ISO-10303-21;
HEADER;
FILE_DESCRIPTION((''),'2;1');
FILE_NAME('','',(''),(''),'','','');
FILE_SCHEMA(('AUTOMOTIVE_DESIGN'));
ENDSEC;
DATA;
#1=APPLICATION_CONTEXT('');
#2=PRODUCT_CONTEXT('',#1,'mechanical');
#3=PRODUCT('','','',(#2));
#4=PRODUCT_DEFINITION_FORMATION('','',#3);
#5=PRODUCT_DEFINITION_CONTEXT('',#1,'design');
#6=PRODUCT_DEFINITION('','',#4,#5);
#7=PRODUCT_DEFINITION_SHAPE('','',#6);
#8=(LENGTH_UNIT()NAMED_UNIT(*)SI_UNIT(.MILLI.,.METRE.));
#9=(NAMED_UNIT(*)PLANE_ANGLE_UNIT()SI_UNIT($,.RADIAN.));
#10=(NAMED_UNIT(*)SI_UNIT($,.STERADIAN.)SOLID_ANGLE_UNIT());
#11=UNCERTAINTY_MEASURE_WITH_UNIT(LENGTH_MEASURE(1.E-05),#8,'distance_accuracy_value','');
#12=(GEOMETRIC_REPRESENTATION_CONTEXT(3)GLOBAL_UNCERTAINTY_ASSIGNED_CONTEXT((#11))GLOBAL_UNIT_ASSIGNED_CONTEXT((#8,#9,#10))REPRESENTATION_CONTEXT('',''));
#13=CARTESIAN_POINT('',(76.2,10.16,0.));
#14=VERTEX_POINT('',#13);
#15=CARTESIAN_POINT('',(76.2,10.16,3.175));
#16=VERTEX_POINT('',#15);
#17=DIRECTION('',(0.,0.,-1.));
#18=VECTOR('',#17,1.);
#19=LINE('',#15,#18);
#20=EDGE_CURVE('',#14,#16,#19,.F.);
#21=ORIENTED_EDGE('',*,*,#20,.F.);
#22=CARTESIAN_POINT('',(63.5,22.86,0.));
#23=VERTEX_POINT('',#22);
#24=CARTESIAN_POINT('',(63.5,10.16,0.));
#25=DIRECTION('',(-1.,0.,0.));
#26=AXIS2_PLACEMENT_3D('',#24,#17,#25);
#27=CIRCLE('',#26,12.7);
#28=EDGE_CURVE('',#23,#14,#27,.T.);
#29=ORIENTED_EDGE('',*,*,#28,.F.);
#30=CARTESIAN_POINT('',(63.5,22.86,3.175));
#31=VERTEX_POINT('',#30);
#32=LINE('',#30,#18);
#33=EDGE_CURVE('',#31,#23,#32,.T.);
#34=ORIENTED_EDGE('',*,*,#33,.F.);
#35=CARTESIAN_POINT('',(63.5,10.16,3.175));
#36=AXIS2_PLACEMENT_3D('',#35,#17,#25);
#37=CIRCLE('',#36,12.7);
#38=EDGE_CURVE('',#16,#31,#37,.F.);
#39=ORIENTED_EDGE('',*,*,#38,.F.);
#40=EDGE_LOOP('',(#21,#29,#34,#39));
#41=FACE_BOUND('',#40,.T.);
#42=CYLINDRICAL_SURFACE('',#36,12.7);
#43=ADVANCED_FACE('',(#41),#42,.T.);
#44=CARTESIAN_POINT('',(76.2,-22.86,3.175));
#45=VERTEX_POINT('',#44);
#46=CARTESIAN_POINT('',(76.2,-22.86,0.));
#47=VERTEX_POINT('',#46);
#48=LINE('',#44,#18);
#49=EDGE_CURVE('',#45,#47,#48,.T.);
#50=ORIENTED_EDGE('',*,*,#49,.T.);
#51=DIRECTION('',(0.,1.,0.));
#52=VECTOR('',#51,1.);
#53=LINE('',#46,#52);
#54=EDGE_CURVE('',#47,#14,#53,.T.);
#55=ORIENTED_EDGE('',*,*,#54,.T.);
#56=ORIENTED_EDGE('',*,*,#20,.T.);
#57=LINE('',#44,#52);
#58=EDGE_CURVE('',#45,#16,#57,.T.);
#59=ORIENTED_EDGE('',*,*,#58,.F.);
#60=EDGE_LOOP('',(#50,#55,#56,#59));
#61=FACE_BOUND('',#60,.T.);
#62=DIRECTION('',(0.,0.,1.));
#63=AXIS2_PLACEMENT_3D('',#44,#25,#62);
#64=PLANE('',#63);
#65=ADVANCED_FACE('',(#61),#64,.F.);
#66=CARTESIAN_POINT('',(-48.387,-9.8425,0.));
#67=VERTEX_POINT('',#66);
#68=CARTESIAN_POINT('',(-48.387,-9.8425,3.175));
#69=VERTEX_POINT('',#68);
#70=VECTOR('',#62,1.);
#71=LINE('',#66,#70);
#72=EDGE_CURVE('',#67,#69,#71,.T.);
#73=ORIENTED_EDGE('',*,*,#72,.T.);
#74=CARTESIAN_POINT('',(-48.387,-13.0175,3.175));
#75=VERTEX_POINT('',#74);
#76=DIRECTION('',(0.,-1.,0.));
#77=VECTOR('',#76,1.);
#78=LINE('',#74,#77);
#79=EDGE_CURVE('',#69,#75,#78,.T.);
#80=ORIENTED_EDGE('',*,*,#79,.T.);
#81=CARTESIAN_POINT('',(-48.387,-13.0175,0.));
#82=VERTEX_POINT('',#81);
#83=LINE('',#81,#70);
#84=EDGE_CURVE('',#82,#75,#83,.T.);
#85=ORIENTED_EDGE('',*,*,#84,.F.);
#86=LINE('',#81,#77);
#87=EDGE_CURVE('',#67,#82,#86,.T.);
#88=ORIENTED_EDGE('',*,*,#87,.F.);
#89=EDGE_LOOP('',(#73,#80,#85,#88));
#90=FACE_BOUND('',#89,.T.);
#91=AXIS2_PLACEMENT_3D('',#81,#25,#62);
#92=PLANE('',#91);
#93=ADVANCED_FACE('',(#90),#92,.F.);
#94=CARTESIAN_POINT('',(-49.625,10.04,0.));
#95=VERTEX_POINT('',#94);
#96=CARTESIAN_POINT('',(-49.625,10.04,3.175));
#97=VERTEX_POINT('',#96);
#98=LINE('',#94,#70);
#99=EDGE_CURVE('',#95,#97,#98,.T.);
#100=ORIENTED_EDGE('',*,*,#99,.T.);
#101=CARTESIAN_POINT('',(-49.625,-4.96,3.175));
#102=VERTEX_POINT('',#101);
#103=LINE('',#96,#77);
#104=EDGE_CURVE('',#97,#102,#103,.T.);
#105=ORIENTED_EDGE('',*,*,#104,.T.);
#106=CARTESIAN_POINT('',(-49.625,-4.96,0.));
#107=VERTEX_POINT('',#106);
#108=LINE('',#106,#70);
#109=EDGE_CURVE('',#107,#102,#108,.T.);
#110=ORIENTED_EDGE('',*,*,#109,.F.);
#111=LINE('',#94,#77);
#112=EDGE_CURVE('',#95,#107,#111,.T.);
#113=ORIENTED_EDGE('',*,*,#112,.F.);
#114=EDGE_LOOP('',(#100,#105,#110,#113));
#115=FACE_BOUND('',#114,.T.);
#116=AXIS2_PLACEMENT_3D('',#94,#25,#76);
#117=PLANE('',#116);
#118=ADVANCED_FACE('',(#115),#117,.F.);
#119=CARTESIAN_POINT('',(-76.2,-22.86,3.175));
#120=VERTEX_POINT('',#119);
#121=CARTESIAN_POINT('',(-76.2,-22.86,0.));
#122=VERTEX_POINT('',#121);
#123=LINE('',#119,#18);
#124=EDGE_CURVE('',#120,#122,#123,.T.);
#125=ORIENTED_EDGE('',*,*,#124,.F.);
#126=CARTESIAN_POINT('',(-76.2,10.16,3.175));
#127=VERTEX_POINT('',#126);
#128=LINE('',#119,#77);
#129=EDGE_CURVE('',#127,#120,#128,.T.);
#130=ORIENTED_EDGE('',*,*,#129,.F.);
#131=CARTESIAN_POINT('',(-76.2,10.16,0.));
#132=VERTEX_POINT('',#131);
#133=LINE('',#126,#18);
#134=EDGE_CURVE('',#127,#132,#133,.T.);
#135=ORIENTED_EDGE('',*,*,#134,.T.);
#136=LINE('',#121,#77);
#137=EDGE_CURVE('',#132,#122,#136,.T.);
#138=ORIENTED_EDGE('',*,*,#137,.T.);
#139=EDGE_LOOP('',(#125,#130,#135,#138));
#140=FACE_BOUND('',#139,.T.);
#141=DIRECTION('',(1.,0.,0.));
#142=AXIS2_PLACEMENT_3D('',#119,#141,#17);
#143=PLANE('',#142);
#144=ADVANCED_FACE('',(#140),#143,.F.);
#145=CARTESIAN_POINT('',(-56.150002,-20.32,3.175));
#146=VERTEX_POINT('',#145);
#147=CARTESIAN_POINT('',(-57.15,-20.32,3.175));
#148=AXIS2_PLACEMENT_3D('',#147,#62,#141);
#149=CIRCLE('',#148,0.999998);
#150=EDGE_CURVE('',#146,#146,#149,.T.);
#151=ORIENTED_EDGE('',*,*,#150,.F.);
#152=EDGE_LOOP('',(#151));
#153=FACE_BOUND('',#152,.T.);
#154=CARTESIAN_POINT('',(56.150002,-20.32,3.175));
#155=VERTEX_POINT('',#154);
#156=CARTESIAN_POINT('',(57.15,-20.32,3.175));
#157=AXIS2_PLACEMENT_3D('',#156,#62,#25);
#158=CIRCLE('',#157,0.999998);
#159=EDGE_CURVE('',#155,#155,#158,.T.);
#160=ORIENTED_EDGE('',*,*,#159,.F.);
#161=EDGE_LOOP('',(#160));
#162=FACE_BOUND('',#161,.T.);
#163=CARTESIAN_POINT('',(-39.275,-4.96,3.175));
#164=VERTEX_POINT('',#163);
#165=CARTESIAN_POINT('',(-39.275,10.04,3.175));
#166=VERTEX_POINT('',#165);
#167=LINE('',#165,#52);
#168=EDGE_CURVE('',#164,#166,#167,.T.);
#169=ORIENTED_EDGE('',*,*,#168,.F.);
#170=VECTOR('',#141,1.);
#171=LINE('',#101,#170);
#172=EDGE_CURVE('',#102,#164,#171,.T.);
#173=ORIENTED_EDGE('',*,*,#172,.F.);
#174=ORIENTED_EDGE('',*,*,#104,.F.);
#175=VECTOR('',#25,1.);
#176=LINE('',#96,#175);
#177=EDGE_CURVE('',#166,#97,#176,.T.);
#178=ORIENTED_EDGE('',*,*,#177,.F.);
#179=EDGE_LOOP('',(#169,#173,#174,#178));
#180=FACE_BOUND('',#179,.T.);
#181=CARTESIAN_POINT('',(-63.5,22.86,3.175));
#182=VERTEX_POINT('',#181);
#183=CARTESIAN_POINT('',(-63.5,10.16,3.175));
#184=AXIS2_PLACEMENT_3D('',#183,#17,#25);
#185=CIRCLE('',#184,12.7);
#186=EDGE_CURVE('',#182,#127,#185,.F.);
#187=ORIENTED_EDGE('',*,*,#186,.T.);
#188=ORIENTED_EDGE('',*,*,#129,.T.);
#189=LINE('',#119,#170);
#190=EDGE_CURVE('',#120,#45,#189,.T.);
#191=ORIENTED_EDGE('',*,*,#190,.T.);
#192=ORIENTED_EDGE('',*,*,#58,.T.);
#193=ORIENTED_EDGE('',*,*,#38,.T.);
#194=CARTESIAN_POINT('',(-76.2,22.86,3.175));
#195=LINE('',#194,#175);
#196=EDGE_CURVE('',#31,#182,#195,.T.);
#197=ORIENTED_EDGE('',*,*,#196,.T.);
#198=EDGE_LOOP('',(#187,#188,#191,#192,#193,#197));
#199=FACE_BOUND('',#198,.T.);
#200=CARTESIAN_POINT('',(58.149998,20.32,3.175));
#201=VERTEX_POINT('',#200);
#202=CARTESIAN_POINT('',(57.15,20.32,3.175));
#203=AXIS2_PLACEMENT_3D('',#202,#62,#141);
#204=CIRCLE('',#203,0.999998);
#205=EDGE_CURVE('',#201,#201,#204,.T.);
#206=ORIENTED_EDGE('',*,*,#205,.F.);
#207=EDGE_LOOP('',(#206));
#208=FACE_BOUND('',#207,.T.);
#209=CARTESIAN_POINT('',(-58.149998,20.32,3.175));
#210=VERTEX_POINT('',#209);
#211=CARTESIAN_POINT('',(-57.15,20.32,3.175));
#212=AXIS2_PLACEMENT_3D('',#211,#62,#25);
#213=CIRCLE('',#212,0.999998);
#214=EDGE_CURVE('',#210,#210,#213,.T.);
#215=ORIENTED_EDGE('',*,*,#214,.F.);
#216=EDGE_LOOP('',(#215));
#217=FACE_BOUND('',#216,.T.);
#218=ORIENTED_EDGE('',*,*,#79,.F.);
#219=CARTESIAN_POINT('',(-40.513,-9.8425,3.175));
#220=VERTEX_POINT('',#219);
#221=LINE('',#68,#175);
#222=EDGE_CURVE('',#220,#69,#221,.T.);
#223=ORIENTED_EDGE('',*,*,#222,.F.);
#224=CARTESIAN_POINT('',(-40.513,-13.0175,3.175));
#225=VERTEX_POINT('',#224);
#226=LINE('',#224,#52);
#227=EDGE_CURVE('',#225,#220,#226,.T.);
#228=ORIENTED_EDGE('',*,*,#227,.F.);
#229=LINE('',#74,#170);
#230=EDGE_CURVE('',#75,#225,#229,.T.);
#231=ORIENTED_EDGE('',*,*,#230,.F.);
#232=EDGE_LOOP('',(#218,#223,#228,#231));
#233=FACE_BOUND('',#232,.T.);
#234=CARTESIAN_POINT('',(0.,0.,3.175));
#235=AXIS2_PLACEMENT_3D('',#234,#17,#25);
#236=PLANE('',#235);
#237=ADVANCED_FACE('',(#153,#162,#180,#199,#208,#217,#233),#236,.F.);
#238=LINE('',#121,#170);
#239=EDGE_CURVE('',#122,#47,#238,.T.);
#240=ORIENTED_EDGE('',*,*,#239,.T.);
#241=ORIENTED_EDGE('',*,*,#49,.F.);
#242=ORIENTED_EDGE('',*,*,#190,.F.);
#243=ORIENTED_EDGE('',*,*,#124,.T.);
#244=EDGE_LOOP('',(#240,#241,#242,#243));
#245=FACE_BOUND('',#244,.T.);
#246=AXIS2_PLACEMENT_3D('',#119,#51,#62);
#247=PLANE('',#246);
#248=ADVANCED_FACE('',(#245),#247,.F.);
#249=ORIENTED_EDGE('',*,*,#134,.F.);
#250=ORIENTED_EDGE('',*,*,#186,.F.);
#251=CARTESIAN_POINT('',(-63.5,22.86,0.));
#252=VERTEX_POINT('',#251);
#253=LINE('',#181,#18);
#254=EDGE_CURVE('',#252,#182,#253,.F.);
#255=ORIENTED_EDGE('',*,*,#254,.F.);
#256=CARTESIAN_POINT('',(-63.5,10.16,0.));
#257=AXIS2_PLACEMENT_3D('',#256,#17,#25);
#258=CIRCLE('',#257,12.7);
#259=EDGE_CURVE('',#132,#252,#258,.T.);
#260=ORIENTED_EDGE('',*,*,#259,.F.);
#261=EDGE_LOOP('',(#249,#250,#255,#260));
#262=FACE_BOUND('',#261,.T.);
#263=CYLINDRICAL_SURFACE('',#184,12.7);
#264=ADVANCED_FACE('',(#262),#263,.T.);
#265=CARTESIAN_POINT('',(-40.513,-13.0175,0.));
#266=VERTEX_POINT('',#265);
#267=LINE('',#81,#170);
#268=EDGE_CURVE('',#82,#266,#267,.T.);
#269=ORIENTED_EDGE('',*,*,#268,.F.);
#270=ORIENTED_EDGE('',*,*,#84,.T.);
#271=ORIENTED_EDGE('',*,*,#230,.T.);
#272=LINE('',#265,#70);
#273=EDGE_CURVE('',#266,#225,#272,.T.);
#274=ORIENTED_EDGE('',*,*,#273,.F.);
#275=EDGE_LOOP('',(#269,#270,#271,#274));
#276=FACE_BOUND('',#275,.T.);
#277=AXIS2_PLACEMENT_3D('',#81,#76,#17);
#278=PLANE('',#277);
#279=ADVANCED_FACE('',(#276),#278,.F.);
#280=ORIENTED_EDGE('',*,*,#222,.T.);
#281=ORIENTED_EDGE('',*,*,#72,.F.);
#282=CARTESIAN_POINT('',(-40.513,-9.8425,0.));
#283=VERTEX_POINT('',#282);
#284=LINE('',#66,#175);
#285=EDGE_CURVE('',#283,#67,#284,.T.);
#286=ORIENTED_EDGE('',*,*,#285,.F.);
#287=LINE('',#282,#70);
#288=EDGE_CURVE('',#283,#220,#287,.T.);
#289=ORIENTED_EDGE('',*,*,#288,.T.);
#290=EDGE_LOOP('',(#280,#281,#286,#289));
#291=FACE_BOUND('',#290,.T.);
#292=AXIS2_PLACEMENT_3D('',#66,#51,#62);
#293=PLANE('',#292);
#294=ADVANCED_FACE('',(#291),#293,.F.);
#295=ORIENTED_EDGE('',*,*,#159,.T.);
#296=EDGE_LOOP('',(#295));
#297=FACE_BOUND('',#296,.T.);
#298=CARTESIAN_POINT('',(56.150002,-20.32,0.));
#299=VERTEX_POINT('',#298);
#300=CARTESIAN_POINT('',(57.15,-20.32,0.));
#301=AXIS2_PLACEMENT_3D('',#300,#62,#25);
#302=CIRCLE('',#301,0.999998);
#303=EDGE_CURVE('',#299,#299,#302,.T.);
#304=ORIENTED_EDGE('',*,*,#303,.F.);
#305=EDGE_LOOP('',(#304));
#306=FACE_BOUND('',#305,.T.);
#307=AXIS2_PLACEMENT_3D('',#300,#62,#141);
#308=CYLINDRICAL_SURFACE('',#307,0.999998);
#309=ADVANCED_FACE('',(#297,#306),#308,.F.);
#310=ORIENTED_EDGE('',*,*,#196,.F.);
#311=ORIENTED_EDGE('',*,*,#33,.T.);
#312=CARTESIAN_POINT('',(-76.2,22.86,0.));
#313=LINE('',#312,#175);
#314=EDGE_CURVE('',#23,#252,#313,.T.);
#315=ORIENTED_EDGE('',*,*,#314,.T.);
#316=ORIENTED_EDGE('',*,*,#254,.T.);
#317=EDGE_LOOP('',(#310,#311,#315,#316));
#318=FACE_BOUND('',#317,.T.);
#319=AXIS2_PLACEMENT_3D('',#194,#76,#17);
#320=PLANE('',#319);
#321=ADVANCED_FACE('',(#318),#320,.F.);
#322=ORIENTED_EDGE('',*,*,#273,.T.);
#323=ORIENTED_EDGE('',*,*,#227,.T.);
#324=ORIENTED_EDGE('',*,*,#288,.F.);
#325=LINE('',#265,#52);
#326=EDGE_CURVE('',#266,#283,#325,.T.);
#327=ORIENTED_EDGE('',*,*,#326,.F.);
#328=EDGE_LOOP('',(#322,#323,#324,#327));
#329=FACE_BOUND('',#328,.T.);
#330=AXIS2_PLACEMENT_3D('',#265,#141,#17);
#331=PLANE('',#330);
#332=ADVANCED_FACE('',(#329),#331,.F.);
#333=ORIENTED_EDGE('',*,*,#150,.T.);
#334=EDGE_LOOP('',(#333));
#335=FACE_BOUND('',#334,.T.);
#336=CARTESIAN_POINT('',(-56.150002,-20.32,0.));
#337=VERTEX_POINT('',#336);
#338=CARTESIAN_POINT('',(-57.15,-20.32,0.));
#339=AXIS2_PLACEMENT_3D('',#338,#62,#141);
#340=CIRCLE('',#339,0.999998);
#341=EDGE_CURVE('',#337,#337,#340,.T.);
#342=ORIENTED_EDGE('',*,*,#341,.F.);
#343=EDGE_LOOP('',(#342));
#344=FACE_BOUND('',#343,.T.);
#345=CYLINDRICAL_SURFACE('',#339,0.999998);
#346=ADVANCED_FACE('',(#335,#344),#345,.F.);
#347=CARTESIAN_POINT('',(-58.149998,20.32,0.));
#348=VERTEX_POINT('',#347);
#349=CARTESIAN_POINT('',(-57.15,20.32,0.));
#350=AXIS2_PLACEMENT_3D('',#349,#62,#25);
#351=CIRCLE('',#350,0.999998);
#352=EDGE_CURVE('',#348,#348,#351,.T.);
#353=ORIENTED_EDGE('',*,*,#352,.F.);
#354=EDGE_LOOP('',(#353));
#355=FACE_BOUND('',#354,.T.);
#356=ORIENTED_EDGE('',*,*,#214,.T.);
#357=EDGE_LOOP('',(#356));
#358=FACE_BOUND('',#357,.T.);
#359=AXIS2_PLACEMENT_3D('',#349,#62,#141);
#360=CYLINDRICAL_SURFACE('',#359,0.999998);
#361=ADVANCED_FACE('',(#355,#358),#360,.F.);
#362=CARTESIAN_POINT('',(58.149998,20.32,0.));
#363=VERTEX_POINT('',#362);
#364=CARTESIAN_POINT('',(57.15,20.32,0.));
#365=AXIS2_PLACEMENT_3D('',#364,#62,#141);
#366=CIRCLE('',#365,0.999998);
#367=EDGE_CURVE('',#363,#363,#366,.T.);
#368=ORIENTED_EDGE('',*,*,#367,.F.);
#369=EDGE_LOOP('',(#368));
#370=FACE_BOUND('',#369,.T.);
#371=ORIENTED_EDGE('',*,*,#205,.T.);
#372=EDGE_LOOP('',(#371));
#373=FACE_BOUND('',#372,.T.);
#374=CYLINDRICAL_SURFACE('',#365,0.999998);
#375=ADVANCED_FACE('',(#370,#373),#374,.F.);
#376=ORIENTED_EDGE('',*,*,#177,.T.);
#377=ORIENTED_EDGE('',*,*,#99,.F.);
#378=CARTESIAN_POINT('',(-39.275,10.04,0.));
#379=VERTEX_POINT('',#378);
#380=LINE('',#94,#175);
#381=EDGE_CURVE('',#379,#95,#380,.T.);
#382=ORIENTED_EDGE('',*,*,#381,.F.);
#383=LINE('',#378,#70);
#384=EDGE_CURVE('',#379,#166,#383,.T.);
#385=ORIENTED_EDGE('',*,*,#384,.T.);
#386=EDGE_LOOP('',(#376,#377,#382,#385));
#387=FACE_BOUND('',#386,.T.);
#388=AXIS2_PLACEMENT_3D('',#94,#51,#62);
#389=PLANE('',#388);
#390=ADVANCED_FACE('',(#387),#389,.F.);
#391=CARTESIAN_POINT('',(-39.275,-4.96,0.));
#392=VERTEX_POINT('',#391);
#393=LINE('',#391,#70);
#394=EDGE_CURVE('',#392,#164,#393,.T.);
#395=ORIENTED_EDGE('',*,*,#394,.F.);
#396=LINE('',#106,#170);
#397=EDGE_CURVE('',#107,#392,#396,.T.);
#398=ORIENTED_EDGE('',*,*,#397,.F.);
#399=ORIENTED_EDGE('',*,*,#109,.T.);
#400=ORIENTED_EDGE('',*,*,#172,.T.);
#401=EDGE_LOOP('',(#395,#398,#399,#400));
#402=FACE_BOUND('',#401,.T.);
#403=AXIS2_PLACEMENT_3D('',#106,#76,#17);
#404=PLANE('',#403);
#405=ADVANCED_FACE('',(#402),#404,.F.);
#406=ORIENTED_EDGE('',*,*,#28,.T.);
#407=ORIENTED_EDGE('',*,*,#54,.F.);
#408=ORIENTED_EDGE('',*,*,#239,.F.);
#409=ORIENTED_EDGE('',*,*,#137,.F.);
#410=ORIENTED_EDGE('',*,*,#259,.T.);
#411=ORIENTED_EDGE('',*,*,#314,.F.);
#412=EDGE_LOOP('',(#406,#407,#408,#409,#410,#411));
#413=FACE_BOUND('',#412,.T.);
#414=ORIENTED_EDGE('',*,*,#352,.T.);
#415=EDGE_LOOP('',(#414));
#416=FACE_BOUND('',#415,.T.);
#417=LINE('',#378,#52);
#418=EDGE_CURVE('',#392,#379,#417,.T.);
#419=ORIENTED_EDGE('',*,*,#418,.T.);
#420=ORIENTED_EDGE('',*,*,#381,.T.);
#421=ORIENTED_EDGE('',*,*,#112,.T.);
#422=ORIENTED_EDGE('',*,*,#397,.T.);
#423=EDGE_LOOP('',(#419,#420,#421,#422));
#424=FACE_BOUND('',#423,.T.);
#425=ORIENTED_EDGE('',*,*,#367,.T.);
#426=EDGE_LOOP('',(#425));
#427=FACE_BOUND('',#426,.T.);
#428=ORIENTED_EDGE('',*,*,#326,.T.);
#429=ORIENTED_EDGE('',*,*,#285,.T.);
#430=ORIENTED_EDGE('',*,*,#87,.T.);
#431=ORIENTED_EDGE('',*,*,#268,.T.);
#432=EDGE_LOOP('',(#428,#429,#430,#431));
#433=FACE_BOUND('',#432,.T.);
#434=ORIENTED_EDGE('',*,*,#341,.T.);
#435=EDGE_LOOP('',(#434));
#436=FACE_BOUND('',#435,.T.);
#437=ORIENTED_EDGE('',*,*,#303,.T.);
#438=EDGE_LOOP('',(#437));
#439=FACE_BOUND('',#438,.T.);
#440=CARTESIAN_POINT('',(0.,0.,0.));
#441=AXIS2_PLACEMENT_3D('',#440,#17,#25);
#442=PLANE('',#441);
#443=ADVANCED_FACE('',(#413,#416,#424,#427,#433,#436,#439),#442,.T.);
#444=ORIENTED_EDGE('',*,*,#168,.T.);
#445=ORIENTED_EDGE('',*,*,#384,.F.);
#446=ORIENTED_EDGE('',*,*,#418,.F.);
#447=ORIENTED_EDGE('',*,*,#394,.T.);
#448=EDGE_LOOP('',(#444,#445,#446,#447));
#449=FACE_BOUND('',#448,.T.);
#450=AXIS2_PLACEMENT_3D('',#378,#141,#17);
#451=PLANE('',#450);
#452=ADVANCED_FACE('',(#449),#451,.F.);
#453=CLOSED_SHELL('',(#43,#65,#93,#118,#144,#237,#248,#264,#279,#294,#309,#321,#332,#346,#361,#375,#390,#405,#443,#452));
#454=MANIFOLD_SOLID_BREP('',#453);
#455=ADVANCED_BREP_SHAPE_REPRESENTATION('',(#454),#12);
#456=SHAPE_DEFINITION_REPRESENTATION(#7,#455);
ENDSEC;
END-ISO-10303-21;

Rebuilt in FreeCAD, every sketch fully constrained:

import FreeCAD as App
import Part
import Sketcher

V = App.Vector
Q = App.Units.Quantity


def edges_at(feature, points):
    """Names of the edges that pass closest to the given points."""
    edges = feature.Shape.Edges
    near = lambda p: min(range(len(edges)), key=lambda i: edges[i].distToShape(Part.Vertex(*p))[0])
    return sorted({f"Edge{near(p) + 1}" for p in points})


def add_polygon(sketch, points):
    """Adds a closed chain of lines whose ends are joined by coincident constraints."""
    first, n = sketch.GeometryCount, len(points)
    for a, b in zip(points, points[1:] + points[:1]):
        sketch.addGeometry(Part.LineSegment(App.Vector(*a, 0), App.Vector(*b, 0)), False)
    for i in range(n):
        sketch.addConstraint(Sketcher.Constraint("Coincident", first + i, 2, first + (i + 1) % n, 1))

doc = App.newDocument("Part")
body = doc.addObject("PartDesign::Body", "Body")

# Sketch on XY plane
sketch1 = doc.addObject("Sketcher::SketchObject", "Sketch")
body.addObject(sketch1)
sketch1.AttachmentSupport = (doc.XY_Plane, [""])
sketch1.MapMode = "FlatFace"
add_polygon(sketch1, [(-76.2, 22.86), (-76.2, -22.86), (76.2, -22.86), (76.2, 22.86)])  # lines 0-3
sketch1.addConstraint(Sketcher.Constraint("Vertical", 0))
sketch1.addConstraint(Sketcher.Constraint("Horizontal", 1))
sketch1.addConstraint(Sketcher.Constraint("Vertical", 2))
sketch1.addConstraint(Sketcher.Constraint("Horizontal", 3))
sketch1.addConstraint(Sketcher.Constraint("Symmetric", 0, 2, 2, 2, -1, 1))
sketch1.addConstraint(Sketcher.Constraint("DistanceX", 1, 1, 1, 2, Q("6 in")))
sketch1.addConstraint(Sketcher.Constraint("DistanceY", 0, 2, 0, 1, Q("1.8 in")))
pad1 = doc.addObject("PartDesign::Pad", "Pad")
body.addObject(pad1)
pad1.Profile = sketch1
pad1.Length = Q("0.125 in")
doc.recompute()

fillet = doc.addObject("PartDesign::Fillet", "Fillet")
body.addObject(fillet)
fillet.Base = (pad1, edges_at(pad1, [(-76.2, 22.86, 1.587), (76.2, 22.86, 1.587)]))
fillet.Radius = Q("0.5 in")

# Sketch on XY plane
sketch2 = doc.addObject("Sketcher::SketchObject", "Sketch001")
body.addObject(sketch2)
sketch2.AttachmentSupport = (doc.XY_Plane, [""])
sketch2.MapMode = "FlatFace"
sketch2.AttachmentOffset = App.Placement(V(0, 0, 0.125 * 25.4), App.Rotation())
sketch2.addGeometry(Part.Circle(V(-57.15, -20.32, 0), V(0, 0, 1), 0.999998), False)
sketch2.addGeometry(Part.Circle(V(-57.15, 20.32, 0), V(0, 0, 1), 0.999998), False)
sketch2.addGeometry(Part.Circle(V(57.15, -20.32, 0), V(0, 0, 1), 0.999998), False)
sketch2.addGeometry(Part.Circle(V(57.15, 20.32, 0), V(0, 0, 1), 0.999998), False)
sketch2.addConstraint(Sketcher.Constraint("Equal", 0, 1))
sketch2.addConstraint(Sketcher.Constraint("Equal", 1, 2))
sketch2.addConstraint(Sketcher.Constraint("Equal", 2, 3))
sketch2.addConstraint(Sketcher.Constraint("Symmetric", 1, 3, 2, 3, -1, 1))
sketch2.addConstraint(Sketcher.Constraint("Symmetric", 0, 3, 3, 3, -1, 1))
sketch2.addConstraint(Sketcher.Constraint("Symmetric", 0, 3, 2, 3, -2))
sketch2.addConstraint(Sketcher.Constraint("DistanceY", 0, 3, -1, 1, Q("0.8 in")))
sketch2.addConstraint(Sketcher.Constraint("DistanceX", 0, 3, 2, 3, Q("4.5 in")))
sketch2.addConstraint(Sketcher.Constraint("Diameter", 0, 1.999996))
pocket1 = doc.addObject("PartDesign::Pocket", "Pocket")
body.addObject(pocket1)
pocket1.Profile = sketch2
pocket1.Type = "ThroughAll"

# Sketch on XY plane
sketch3 = doc.addObject("Sketcher::SketchObject", "Sketch002")
body.addObject(sketch3)
sketch3.AttachmentSupport = (doc.XY_Plane, [""])
sketch3.MapMode = "FlatFace"
sketch3.AttachmentOffset = App.Placement(V(0, 0, 0.125 * 25.4), App.Rotation())
add_polygon(sketch3, [(-48.387, -9.8425), (-48.387, -13.0175), (-40.513, -13.0175), (-40.513, -9.8425)])  # lines 0-3
sketch3.addConstraint(Sketcher.Constraint("Vertical", 0))
sketch3.addConstraint(Sketcher.Constraint("Horizontal", 1))
sketch3.addConstraint(Sketcher.Constraint("Vertical", 2))
sketch3.addConstraint(Sketcher.Constraint("Horizontal", 3))
sketch3.addConstraint(Sketcher.Constraint("DistanceX", 1, 1, 1, 2, Q("0.31 in")))
sketch3.addConstraint(Sketcher.Constraint("DistanceY", 0, 2, 0, 1, Q("0.125 in")))
sketch3.addConstraint(Sketcher.Constraint("DistanceX", 0, 2, -1, 1, Q("1.905 in")))
sketch3.addConstraint(Sketcher.Constraint("DistanceY", 0, 2, -1, 1, Q("0.5125 in")))
pocket2 = doc.addObject("PartDesign::Pocket", "Pocket001")
body.addObject(pocket2)
pocket2.Profile = sketch3
pocket2.Type = "ThroughAll"

# Sketch on XY plane
sketch4 = doc.addObject("Sketcher::SketchObject", "Sketch003")
body.addObject(sketch4)
sketch4.AttachmentSupport = (doc.XY_Plane, [""])
sketch4.MapMode = "FlatFace"
sketch4.AttachmentOffset = App.Placement(V(0, 0, 0.125 * 25.4), App.Rotation())
add_polygon(sketch4, [(-49.625, 10.04), (-49.625, -4.96), (-39.275, -4.96), (-39.275, 10.04)])  # lines 0-3
sketch4.addConstraint(Sketcher.Constraint("Vertical", 0))
sketch4.addConstraint(Sketcher.Constraint("Horizontal", 1))
sketch4.addConstraint(Sketcher.Constraint("Vertical", 2))
sketch4.addConstraint(Sketcher.Constraint("Horizontal", 3))
sketch4.addConstraint(Sketcher.Constraint("DistanceX", 1, 1, 1, 2, 10.35))
sketch4.addConstraint(Sketcher.Constraint("DistanceY", 0, 2, 0, 1, 15.0))
sketch4.addConstraint(Sketcher.Constraint("DistanceX", 0, 2, -1, 1, 49.625))
sketch4.addConstraint(Sketcher.Constraint("DistanceY", 0, 2, -1, 1, 4.96))
pocket3 = doc.addObject("PartDesign::Pocket", "Pocket002")
body.addObject(pocket3)
pocket3.Profile = sketch4
pocket3.Type = "ThroughAll"

doc.recompute()
